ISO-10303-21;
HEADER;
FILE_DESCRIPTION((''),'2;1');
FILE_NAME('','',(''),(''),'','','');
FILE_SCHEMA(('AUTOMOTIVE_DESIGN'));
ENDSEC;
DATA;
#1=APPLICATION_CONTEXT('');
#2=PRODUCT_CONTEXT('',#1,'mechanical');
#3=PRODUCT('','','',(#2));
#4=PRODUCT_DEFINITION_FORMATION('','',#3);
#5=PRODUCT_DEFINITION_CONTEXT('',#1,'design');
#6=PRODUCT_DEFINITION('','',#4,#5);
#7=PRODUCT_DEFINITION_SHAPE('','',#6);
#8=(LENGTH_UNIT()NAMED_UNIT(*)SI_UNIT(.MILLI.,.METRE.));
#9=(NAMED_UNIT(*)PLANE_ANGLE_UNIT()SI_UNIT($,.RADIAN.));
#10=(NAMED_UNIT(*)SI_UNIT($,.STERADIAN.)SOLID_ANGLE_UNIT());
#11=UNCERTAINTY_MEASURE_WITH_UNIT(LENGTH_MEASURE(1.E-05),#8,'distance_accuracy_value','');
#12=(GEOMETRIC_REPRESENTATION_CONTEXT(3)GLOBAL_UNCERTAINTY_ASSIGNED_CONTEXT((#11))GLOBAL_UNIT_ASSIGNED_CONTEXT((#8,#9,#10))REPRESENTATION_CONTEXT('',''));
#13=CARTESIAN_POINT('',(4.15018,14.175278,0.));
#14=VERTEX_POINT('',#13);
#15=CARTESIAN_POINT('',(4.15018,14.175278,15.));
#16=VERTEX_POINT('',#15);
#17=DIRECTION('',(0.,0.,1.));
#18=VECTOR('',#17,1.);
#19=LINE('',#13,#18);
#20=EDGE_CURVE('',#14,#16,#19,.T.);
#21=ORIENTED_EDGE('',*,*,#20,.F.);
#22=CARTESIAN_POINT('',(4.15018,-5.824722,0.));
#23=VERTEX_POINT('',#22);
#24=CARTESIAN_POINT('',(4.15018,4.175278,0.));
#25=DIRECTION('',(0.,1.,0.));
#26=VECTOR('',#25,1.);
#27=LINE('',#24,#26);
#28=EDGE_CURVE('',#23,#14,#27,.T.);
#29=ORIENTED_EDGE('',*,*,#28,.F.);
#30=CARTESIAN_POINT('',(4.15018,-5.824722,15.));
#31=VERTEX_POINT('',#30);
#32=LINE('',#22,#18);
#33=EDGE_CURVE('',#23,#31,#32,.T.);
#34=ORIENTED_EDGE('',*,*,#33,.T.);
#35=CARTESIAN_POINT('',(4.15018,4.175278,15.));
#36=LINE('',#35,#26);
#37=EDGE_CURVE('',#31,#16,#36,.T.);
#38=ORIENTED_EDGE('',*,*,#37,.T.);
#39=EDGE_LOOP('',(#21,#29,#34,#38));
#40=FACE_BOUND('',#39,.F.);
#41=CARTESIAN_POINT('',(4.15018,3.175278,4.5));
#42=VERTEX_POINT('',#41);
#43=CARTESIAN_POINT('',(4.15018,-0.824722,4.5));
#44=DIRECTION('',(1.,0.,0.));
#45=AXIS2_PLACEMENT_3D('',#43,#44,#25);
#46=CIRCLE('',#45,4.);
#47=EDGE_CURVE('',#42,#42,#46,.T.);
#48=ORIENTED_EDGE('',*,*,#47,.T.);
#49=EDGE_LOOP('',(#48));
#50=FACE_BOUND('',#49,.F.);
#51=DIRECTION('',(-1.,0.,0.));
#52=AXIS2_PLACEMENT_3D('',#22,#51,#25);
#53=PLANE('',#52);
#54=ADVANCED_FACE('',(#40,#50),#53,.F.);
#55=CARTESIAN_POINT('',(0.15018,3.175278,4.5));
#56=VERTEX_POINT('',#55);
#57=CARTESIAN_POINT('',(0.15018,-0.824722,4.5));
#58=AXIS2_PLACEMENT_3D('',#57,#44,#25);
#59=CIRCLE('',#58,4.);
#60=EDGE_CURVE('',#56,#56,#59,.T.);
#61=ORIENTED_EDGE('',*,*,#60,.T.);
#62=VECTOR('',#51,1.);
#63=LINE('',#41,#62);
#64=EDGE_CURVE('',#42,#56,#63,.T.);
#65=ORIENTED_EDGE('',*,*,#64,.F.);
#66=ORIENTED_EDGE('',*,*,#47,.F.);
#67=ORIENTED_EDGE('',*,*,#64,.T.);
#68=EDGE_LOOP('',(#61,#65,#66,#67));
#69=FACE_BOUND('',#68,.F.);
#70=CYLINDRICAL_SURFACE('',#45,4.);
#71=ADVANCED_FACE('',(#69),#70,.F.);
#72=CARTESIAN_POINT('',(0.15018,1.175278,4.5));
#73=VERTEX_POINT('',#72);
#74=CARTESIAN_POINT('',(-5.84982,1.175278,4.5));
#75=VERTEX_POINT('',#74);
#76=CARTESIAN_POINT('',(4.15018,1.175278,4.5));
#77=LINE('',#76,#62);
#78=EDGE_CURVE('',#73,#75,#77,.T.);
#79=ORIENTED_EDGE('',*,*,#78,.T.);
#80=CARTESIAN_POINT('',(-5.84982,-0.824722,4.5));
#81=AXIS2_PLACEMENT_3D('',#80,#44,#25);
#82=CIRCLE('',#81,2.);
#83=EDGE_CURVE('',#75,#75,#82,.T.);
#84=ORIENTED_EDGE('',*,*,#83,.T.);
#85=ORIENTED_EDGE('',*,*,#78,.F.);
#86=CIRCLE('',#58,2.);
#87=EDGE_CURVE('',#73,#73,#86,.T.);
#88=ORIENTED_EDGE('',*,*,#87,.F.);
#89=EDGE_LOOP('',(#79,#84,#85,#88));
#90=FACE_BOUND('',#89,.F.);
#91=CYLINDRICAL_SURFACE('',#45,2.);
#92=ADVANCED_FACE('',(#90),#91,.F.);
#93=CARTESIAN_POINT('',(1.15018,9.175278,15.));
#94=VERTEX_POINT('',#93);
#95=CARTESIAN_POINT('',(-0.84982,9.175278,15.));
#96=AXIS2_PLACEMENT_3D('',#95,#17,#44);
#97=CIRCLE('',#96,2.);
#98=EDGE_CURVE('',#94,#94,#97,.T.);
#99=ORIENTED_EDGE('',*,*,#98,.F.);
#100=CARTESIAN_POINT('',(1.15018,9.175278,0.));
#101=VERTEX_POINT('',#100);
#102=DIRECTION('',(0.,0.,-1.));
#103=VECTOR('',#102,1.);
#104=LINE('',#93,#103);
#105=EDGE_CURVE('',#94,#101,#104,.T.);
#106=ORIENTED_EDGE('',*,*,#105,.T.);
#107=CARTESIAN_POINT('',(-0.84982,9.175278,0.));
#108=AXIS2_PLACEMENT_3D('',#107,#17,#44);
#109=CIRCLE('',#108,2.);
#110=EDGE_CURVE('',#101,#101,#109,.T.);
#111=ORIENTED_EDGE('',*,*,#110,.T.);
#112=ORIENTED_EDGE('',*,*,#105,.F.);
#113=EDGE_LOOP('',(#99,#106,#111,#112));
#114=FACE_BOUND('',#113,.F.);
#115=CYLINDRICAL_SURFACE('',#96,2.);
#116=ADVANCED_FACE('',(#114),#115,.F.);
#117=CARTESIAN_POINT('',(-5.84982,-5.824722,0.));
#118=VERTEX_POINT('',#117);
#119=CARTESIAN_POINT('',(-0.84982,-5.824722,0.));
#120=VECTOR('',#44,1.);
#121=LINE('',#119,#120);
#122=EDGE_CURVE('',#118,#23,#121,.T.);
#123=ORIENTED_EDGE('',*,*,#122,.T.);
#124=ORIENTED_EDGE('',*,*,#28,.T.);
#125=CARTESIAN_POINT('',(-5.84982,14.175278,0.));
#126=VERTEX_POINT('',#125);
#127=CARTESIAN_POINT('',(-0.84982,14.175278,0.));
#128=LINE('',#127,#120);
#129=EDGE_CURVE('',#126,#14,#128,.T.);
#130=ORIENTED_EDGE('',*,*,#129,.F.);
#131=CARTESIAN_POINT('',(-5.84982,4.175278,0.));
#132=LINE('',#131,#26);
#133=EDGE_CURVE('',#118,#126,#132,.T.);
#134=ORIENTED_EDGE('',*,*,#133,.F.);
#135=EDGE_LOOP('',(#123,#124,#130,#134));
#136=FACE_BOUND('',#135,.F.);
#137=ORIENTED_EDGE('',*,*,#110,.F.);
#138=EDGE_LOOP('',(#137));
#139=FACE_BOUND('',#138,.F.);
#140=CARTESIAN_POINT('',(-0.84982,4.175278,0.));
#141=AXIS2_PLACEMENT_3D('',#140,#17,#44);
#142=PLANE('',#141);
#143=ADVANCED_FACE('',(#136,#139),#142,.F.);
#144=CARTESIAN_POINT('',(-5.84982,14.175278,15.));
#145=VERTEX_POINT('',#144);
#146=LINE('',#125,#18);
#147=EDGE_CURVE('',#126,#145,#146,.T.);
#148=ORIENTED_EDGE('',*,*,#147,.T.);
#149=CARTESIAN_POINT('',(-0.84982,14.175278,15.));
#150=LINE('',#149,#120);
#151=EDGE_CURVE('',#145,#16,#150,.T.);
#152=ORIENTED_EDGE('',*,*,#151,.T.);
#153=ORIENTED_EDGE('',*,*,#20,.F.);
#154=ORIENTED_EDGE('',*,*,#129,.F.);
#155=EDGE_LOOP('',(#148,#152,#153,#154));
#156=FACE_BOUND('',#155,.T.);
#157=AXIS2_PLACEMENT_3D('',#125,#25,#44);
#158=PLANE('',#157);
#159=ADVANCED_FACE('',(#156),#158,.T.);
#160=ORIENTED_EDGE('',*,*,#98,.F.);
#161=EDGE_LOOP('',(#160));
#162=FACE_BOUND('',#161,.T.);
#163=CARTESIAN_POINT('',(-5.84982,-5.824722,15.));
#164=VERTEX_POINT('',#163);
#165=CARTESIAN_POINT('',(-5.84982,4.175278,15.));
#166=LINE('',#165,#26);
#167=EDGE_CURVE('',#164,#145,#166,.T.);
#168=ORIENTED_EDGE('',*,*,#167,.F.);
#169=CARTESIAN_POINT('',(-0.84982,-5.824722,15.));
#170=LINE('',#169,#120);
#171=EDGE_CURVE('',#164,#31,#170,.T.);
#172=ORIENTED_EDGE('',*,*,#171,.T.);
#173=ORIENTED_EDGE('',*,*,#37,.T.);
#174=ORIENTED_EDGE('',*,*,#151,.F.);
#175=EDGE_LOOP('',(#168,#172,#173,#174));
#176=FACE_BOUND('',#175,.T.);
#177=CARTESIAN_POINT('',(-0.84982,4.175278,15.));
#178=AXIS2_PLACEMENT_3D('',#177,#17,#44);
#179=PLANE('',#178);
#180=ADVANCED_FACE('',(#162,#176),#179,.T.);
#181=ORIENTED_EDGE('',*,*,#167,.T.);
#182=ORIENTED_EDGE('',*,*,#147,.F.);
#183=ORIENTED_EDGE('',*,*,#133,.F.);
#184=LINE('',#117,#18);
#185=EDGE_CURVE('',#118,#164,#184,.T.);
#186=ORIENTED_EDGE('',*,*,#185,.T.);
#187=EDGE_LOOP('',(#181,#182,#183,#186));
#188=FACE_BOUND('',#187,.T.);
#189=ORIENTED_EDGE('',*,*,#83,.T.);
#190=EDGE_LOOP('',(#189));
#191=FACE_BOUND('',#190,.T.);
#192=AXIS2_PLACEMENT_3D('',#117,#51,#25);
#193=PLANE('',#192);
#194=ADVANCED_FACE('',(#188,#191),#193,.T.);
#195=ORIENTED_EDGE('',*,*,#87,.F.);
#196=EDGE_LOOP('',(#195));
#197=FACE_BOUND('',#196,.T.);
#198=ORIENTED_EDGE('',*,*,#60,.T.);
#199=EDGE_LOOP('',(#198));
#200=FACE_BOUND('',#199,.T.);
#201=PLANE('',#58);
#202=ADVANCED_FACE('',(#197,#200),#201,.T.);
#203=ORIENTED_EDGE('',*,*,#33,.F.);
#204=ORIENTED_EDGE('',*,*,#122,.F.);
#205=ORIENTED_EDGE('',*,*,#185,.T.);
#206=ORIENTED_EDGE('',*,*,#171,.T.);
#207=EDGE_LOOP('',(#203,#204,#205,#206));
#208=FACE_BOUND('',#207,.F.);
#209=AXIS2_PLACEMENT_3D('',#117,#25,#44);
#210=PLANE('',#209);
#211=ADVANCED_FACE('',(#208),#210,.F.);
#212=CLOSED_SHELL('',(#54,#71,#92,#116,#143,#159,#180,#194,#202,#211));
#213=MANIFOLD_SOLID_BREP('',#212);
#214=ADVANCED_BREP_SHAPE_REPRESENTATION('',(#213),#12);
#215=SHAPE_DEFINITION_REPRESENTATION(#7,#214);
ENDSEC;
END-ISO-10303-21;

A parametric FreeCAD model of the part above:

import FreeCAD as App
import Part
import Sketcher
Q = App.Units.Quantity

doc = App.newDocument("Part")
params = doc.addObject("Spreadsheet::Sheet", "Params")
for row, (alias, value) in enumerate([
    ("sketch1_width", "10 mm"),
    ("sketch1_height", "20 mm"),
    ("pad1_length", "15 mm"),
    ("sketch2_diameter", "4 mm"),
    ("pocket1_length", "20 mm"),
    ("sketch3_diameter", "8 mm"),
    ("sketch3_diameter2", "4 mm"),
    ("pocket2_length", "4 mm"),
    ("sketch4_diameter", "4 mm"),
    ("pocket3_length", "20 mm"),
], start=1):
    params.set(f"A{row}", alias)
    params.set(f"B{row}", "=" + value)
    params.setAlias(f"B{row}", alias)

body = doc.addObject("PartDesign::Body", "Body")

# Sketch on XY plane
sketch1 = body.newObject("Sketcher::SketchObject", "Sketch")
sketch1.AttachmentSupport = (doc.getObject("XY_Plane"), [""])
sketch1.MapMode = "FlatFace"
sketch1.addGeometry([
    Part.LineSegment(App.Vector(-6, 14, 0), App.Vector(-6, -6, 0)),
    Part.LineSegment(App.Vector(-6, -6, 0), App.Vector(4, -6, 0)),
    Part.LineSegment(App.Vector(4, -6, 0), App.Vector(4, 14, 0)),
    Part.LineSegment(App.Vector(4, 14, 0), App.Vector(-6, 14, 0)),
], False)
sketch1.addConstraint([
    Sketcher.Constraint("Coincident", 0, 2, 1, 1),
    Sketcher.Constraint("Coincident", 1, 2, 2, 1),
    Sketcher.Constraint("Coincident", 2, 2, 3, 1),
    Sketcher.Constraint("Coincident", 3, 2, 0, 1),
    Sketcher.Constraint("Vertical", 0),
    Sketcher.Constraint("Horizontal", 1),
    Sketcher.Constraint("Vertical", 2),
    Sketcher.Constraint("Horizontal", 3),
    Sketcher.Constraint("DistanceX", 1, 1, 1, 2, Q("10 mm")),
    Sketcher.Constraint("DistanceY", 0, 2, 0, 1, Q("20 mm")),
    Sketcher.Constraint("DistanceX", 0, 2, -1, 1, Q("5.84982 mm")),
    Sketcher.Constraint("DistanceY", 0, 2, -1, 1, Q("5.824722 mm")),
])
sketch1.setExpression("Constraints[8]", "Params.sketch1_width")
sketch1.setExpression("Constraints[9]", "Params.sketch1_height")
pad1 = body.newObject("PartDesign::Pad", "Pad")
pad1.Profile = sketch1
pad1.setExpression("Length", "Params.pad1_length")

# Sketch on YZ plane
sketch2 = body.newObject("Sketcher::SketchObject", "Sketch001")
sketch2.AttachmentSupport = (doc.getObject("YZ_Plane"), [""])
sketch2.MapMode = "FlatFace"
sketch2.AttachmentOffset = App.Placement(App.Vector(0, 0, 4.15018), App.Rotation())
sketch2.addGeometry(Part.Circle(App.Vector(-0.8, 4.5, 0), App.Vector(0, 0, 1), 2), False)
sketch2.addConstraint([
    Sketcher.Constraint("Diameter", 0, Q("4 mm")),
    Sketcher.Constraint("DistanceY", -1, 1, 0, 3, Q("4.5 mm")),
    Sketcher.Constraint("DistanceX", 0, 3, -1, 1, Q("0.824722 mm")),
])
sketch2.setExpression("Constraints[0]", "Params.sketch2_diameter")
pocket1 = body.newObject("PartDesign::Pocket", "Pocket")
pocket1.Profile = sketch2
pocket1.setExpression("Length", "Params.pocket1_length")

# Sketch on YZ plane
sketch3 = body.newObject("Sketcher::SketchObject", "Sketch002")
sketch3.AttachmentSupport = (doc.getObject("YZ_Plane"), [""])
sketch3.MapMode = "FlatFace"
sketch3.AttachmentOffset = App.Placement(App.Vector(0, 0, 4.15018), App.Rotation())
sketch3.addGeometry([
    Part.Circle(App.Vector(-0.8, 4.5, 0), App.Vector(0, 0, 1), 4),
    Part.Circle(App.Vector(-0.8, 4.5, 0), App.Vector(0, 0, 1), 2),
], False)
sketch3.addConstraint([
    Sketcher.Constraint("Coincident", 1, 3, 0, 3),
    Sketcher.Constraint("Diameter", 0, Q("8 mm")),
    Sketcher.Constraint("Diameter", 1, Q("4 mm")),
    Sketcher.Constraint("DistanceY", -1, 1, 0, 3, Q("4.5 mm")),
    Sketcher.Constraint("DistanceX", 0, 3, -1, 1, Q("0.824722 mm")),
])
sketch3.setExpression("Constraints[1]", "Params.sketch3_diameter")
sketch3.setExpression("Constraints[2]", "Params.sketch3_diameter2")
pocket2 = body.newObject("PartDesign::Pocket", "Pocket001")
pocket2.Profile = sketch3
pocket2.setExpression("Length", "Params.pocket2_length")

# Sketch on XY plane
sketch4 = body.newObject("Sketcher::SketchObject", "Sketch003")
sketch4.AttachmentSupport = (doc.getObject("XY_Plane"), [""])
sketch4.MapMode = "FlatFace"
sketch4.AttachmentOffset = App.Placement(App.Vector(0, 0, 15), App.Rotation())
sketch4.addGeometry(Part.Circle(App.Vector(-0.8, 9.2, 0), App.Vector(0, 0, 1), 2), False)
sketch4.addConstraint([
    Sketcher.Constraint("Diameter", 0, Q("4 mm")),
    Sketcher.Constraint("DistanceX", 0, 3, -1, 1, Q("0.84982 mm")),
    Sketcher.Constraint("DistanceY", -1, 1, 0, 3, Q("9.175278 mm")),
])
sketch4.setExpression("Constraints[0]", "Params.sketch4_diameter")
pocket3 = body.newObject("PartDesign::Pocket", "Pocket002")
pocket3.Profile = sketch4
pocket3.setExpression("Length", "Params.pocket3_length")

doc.recompute()
